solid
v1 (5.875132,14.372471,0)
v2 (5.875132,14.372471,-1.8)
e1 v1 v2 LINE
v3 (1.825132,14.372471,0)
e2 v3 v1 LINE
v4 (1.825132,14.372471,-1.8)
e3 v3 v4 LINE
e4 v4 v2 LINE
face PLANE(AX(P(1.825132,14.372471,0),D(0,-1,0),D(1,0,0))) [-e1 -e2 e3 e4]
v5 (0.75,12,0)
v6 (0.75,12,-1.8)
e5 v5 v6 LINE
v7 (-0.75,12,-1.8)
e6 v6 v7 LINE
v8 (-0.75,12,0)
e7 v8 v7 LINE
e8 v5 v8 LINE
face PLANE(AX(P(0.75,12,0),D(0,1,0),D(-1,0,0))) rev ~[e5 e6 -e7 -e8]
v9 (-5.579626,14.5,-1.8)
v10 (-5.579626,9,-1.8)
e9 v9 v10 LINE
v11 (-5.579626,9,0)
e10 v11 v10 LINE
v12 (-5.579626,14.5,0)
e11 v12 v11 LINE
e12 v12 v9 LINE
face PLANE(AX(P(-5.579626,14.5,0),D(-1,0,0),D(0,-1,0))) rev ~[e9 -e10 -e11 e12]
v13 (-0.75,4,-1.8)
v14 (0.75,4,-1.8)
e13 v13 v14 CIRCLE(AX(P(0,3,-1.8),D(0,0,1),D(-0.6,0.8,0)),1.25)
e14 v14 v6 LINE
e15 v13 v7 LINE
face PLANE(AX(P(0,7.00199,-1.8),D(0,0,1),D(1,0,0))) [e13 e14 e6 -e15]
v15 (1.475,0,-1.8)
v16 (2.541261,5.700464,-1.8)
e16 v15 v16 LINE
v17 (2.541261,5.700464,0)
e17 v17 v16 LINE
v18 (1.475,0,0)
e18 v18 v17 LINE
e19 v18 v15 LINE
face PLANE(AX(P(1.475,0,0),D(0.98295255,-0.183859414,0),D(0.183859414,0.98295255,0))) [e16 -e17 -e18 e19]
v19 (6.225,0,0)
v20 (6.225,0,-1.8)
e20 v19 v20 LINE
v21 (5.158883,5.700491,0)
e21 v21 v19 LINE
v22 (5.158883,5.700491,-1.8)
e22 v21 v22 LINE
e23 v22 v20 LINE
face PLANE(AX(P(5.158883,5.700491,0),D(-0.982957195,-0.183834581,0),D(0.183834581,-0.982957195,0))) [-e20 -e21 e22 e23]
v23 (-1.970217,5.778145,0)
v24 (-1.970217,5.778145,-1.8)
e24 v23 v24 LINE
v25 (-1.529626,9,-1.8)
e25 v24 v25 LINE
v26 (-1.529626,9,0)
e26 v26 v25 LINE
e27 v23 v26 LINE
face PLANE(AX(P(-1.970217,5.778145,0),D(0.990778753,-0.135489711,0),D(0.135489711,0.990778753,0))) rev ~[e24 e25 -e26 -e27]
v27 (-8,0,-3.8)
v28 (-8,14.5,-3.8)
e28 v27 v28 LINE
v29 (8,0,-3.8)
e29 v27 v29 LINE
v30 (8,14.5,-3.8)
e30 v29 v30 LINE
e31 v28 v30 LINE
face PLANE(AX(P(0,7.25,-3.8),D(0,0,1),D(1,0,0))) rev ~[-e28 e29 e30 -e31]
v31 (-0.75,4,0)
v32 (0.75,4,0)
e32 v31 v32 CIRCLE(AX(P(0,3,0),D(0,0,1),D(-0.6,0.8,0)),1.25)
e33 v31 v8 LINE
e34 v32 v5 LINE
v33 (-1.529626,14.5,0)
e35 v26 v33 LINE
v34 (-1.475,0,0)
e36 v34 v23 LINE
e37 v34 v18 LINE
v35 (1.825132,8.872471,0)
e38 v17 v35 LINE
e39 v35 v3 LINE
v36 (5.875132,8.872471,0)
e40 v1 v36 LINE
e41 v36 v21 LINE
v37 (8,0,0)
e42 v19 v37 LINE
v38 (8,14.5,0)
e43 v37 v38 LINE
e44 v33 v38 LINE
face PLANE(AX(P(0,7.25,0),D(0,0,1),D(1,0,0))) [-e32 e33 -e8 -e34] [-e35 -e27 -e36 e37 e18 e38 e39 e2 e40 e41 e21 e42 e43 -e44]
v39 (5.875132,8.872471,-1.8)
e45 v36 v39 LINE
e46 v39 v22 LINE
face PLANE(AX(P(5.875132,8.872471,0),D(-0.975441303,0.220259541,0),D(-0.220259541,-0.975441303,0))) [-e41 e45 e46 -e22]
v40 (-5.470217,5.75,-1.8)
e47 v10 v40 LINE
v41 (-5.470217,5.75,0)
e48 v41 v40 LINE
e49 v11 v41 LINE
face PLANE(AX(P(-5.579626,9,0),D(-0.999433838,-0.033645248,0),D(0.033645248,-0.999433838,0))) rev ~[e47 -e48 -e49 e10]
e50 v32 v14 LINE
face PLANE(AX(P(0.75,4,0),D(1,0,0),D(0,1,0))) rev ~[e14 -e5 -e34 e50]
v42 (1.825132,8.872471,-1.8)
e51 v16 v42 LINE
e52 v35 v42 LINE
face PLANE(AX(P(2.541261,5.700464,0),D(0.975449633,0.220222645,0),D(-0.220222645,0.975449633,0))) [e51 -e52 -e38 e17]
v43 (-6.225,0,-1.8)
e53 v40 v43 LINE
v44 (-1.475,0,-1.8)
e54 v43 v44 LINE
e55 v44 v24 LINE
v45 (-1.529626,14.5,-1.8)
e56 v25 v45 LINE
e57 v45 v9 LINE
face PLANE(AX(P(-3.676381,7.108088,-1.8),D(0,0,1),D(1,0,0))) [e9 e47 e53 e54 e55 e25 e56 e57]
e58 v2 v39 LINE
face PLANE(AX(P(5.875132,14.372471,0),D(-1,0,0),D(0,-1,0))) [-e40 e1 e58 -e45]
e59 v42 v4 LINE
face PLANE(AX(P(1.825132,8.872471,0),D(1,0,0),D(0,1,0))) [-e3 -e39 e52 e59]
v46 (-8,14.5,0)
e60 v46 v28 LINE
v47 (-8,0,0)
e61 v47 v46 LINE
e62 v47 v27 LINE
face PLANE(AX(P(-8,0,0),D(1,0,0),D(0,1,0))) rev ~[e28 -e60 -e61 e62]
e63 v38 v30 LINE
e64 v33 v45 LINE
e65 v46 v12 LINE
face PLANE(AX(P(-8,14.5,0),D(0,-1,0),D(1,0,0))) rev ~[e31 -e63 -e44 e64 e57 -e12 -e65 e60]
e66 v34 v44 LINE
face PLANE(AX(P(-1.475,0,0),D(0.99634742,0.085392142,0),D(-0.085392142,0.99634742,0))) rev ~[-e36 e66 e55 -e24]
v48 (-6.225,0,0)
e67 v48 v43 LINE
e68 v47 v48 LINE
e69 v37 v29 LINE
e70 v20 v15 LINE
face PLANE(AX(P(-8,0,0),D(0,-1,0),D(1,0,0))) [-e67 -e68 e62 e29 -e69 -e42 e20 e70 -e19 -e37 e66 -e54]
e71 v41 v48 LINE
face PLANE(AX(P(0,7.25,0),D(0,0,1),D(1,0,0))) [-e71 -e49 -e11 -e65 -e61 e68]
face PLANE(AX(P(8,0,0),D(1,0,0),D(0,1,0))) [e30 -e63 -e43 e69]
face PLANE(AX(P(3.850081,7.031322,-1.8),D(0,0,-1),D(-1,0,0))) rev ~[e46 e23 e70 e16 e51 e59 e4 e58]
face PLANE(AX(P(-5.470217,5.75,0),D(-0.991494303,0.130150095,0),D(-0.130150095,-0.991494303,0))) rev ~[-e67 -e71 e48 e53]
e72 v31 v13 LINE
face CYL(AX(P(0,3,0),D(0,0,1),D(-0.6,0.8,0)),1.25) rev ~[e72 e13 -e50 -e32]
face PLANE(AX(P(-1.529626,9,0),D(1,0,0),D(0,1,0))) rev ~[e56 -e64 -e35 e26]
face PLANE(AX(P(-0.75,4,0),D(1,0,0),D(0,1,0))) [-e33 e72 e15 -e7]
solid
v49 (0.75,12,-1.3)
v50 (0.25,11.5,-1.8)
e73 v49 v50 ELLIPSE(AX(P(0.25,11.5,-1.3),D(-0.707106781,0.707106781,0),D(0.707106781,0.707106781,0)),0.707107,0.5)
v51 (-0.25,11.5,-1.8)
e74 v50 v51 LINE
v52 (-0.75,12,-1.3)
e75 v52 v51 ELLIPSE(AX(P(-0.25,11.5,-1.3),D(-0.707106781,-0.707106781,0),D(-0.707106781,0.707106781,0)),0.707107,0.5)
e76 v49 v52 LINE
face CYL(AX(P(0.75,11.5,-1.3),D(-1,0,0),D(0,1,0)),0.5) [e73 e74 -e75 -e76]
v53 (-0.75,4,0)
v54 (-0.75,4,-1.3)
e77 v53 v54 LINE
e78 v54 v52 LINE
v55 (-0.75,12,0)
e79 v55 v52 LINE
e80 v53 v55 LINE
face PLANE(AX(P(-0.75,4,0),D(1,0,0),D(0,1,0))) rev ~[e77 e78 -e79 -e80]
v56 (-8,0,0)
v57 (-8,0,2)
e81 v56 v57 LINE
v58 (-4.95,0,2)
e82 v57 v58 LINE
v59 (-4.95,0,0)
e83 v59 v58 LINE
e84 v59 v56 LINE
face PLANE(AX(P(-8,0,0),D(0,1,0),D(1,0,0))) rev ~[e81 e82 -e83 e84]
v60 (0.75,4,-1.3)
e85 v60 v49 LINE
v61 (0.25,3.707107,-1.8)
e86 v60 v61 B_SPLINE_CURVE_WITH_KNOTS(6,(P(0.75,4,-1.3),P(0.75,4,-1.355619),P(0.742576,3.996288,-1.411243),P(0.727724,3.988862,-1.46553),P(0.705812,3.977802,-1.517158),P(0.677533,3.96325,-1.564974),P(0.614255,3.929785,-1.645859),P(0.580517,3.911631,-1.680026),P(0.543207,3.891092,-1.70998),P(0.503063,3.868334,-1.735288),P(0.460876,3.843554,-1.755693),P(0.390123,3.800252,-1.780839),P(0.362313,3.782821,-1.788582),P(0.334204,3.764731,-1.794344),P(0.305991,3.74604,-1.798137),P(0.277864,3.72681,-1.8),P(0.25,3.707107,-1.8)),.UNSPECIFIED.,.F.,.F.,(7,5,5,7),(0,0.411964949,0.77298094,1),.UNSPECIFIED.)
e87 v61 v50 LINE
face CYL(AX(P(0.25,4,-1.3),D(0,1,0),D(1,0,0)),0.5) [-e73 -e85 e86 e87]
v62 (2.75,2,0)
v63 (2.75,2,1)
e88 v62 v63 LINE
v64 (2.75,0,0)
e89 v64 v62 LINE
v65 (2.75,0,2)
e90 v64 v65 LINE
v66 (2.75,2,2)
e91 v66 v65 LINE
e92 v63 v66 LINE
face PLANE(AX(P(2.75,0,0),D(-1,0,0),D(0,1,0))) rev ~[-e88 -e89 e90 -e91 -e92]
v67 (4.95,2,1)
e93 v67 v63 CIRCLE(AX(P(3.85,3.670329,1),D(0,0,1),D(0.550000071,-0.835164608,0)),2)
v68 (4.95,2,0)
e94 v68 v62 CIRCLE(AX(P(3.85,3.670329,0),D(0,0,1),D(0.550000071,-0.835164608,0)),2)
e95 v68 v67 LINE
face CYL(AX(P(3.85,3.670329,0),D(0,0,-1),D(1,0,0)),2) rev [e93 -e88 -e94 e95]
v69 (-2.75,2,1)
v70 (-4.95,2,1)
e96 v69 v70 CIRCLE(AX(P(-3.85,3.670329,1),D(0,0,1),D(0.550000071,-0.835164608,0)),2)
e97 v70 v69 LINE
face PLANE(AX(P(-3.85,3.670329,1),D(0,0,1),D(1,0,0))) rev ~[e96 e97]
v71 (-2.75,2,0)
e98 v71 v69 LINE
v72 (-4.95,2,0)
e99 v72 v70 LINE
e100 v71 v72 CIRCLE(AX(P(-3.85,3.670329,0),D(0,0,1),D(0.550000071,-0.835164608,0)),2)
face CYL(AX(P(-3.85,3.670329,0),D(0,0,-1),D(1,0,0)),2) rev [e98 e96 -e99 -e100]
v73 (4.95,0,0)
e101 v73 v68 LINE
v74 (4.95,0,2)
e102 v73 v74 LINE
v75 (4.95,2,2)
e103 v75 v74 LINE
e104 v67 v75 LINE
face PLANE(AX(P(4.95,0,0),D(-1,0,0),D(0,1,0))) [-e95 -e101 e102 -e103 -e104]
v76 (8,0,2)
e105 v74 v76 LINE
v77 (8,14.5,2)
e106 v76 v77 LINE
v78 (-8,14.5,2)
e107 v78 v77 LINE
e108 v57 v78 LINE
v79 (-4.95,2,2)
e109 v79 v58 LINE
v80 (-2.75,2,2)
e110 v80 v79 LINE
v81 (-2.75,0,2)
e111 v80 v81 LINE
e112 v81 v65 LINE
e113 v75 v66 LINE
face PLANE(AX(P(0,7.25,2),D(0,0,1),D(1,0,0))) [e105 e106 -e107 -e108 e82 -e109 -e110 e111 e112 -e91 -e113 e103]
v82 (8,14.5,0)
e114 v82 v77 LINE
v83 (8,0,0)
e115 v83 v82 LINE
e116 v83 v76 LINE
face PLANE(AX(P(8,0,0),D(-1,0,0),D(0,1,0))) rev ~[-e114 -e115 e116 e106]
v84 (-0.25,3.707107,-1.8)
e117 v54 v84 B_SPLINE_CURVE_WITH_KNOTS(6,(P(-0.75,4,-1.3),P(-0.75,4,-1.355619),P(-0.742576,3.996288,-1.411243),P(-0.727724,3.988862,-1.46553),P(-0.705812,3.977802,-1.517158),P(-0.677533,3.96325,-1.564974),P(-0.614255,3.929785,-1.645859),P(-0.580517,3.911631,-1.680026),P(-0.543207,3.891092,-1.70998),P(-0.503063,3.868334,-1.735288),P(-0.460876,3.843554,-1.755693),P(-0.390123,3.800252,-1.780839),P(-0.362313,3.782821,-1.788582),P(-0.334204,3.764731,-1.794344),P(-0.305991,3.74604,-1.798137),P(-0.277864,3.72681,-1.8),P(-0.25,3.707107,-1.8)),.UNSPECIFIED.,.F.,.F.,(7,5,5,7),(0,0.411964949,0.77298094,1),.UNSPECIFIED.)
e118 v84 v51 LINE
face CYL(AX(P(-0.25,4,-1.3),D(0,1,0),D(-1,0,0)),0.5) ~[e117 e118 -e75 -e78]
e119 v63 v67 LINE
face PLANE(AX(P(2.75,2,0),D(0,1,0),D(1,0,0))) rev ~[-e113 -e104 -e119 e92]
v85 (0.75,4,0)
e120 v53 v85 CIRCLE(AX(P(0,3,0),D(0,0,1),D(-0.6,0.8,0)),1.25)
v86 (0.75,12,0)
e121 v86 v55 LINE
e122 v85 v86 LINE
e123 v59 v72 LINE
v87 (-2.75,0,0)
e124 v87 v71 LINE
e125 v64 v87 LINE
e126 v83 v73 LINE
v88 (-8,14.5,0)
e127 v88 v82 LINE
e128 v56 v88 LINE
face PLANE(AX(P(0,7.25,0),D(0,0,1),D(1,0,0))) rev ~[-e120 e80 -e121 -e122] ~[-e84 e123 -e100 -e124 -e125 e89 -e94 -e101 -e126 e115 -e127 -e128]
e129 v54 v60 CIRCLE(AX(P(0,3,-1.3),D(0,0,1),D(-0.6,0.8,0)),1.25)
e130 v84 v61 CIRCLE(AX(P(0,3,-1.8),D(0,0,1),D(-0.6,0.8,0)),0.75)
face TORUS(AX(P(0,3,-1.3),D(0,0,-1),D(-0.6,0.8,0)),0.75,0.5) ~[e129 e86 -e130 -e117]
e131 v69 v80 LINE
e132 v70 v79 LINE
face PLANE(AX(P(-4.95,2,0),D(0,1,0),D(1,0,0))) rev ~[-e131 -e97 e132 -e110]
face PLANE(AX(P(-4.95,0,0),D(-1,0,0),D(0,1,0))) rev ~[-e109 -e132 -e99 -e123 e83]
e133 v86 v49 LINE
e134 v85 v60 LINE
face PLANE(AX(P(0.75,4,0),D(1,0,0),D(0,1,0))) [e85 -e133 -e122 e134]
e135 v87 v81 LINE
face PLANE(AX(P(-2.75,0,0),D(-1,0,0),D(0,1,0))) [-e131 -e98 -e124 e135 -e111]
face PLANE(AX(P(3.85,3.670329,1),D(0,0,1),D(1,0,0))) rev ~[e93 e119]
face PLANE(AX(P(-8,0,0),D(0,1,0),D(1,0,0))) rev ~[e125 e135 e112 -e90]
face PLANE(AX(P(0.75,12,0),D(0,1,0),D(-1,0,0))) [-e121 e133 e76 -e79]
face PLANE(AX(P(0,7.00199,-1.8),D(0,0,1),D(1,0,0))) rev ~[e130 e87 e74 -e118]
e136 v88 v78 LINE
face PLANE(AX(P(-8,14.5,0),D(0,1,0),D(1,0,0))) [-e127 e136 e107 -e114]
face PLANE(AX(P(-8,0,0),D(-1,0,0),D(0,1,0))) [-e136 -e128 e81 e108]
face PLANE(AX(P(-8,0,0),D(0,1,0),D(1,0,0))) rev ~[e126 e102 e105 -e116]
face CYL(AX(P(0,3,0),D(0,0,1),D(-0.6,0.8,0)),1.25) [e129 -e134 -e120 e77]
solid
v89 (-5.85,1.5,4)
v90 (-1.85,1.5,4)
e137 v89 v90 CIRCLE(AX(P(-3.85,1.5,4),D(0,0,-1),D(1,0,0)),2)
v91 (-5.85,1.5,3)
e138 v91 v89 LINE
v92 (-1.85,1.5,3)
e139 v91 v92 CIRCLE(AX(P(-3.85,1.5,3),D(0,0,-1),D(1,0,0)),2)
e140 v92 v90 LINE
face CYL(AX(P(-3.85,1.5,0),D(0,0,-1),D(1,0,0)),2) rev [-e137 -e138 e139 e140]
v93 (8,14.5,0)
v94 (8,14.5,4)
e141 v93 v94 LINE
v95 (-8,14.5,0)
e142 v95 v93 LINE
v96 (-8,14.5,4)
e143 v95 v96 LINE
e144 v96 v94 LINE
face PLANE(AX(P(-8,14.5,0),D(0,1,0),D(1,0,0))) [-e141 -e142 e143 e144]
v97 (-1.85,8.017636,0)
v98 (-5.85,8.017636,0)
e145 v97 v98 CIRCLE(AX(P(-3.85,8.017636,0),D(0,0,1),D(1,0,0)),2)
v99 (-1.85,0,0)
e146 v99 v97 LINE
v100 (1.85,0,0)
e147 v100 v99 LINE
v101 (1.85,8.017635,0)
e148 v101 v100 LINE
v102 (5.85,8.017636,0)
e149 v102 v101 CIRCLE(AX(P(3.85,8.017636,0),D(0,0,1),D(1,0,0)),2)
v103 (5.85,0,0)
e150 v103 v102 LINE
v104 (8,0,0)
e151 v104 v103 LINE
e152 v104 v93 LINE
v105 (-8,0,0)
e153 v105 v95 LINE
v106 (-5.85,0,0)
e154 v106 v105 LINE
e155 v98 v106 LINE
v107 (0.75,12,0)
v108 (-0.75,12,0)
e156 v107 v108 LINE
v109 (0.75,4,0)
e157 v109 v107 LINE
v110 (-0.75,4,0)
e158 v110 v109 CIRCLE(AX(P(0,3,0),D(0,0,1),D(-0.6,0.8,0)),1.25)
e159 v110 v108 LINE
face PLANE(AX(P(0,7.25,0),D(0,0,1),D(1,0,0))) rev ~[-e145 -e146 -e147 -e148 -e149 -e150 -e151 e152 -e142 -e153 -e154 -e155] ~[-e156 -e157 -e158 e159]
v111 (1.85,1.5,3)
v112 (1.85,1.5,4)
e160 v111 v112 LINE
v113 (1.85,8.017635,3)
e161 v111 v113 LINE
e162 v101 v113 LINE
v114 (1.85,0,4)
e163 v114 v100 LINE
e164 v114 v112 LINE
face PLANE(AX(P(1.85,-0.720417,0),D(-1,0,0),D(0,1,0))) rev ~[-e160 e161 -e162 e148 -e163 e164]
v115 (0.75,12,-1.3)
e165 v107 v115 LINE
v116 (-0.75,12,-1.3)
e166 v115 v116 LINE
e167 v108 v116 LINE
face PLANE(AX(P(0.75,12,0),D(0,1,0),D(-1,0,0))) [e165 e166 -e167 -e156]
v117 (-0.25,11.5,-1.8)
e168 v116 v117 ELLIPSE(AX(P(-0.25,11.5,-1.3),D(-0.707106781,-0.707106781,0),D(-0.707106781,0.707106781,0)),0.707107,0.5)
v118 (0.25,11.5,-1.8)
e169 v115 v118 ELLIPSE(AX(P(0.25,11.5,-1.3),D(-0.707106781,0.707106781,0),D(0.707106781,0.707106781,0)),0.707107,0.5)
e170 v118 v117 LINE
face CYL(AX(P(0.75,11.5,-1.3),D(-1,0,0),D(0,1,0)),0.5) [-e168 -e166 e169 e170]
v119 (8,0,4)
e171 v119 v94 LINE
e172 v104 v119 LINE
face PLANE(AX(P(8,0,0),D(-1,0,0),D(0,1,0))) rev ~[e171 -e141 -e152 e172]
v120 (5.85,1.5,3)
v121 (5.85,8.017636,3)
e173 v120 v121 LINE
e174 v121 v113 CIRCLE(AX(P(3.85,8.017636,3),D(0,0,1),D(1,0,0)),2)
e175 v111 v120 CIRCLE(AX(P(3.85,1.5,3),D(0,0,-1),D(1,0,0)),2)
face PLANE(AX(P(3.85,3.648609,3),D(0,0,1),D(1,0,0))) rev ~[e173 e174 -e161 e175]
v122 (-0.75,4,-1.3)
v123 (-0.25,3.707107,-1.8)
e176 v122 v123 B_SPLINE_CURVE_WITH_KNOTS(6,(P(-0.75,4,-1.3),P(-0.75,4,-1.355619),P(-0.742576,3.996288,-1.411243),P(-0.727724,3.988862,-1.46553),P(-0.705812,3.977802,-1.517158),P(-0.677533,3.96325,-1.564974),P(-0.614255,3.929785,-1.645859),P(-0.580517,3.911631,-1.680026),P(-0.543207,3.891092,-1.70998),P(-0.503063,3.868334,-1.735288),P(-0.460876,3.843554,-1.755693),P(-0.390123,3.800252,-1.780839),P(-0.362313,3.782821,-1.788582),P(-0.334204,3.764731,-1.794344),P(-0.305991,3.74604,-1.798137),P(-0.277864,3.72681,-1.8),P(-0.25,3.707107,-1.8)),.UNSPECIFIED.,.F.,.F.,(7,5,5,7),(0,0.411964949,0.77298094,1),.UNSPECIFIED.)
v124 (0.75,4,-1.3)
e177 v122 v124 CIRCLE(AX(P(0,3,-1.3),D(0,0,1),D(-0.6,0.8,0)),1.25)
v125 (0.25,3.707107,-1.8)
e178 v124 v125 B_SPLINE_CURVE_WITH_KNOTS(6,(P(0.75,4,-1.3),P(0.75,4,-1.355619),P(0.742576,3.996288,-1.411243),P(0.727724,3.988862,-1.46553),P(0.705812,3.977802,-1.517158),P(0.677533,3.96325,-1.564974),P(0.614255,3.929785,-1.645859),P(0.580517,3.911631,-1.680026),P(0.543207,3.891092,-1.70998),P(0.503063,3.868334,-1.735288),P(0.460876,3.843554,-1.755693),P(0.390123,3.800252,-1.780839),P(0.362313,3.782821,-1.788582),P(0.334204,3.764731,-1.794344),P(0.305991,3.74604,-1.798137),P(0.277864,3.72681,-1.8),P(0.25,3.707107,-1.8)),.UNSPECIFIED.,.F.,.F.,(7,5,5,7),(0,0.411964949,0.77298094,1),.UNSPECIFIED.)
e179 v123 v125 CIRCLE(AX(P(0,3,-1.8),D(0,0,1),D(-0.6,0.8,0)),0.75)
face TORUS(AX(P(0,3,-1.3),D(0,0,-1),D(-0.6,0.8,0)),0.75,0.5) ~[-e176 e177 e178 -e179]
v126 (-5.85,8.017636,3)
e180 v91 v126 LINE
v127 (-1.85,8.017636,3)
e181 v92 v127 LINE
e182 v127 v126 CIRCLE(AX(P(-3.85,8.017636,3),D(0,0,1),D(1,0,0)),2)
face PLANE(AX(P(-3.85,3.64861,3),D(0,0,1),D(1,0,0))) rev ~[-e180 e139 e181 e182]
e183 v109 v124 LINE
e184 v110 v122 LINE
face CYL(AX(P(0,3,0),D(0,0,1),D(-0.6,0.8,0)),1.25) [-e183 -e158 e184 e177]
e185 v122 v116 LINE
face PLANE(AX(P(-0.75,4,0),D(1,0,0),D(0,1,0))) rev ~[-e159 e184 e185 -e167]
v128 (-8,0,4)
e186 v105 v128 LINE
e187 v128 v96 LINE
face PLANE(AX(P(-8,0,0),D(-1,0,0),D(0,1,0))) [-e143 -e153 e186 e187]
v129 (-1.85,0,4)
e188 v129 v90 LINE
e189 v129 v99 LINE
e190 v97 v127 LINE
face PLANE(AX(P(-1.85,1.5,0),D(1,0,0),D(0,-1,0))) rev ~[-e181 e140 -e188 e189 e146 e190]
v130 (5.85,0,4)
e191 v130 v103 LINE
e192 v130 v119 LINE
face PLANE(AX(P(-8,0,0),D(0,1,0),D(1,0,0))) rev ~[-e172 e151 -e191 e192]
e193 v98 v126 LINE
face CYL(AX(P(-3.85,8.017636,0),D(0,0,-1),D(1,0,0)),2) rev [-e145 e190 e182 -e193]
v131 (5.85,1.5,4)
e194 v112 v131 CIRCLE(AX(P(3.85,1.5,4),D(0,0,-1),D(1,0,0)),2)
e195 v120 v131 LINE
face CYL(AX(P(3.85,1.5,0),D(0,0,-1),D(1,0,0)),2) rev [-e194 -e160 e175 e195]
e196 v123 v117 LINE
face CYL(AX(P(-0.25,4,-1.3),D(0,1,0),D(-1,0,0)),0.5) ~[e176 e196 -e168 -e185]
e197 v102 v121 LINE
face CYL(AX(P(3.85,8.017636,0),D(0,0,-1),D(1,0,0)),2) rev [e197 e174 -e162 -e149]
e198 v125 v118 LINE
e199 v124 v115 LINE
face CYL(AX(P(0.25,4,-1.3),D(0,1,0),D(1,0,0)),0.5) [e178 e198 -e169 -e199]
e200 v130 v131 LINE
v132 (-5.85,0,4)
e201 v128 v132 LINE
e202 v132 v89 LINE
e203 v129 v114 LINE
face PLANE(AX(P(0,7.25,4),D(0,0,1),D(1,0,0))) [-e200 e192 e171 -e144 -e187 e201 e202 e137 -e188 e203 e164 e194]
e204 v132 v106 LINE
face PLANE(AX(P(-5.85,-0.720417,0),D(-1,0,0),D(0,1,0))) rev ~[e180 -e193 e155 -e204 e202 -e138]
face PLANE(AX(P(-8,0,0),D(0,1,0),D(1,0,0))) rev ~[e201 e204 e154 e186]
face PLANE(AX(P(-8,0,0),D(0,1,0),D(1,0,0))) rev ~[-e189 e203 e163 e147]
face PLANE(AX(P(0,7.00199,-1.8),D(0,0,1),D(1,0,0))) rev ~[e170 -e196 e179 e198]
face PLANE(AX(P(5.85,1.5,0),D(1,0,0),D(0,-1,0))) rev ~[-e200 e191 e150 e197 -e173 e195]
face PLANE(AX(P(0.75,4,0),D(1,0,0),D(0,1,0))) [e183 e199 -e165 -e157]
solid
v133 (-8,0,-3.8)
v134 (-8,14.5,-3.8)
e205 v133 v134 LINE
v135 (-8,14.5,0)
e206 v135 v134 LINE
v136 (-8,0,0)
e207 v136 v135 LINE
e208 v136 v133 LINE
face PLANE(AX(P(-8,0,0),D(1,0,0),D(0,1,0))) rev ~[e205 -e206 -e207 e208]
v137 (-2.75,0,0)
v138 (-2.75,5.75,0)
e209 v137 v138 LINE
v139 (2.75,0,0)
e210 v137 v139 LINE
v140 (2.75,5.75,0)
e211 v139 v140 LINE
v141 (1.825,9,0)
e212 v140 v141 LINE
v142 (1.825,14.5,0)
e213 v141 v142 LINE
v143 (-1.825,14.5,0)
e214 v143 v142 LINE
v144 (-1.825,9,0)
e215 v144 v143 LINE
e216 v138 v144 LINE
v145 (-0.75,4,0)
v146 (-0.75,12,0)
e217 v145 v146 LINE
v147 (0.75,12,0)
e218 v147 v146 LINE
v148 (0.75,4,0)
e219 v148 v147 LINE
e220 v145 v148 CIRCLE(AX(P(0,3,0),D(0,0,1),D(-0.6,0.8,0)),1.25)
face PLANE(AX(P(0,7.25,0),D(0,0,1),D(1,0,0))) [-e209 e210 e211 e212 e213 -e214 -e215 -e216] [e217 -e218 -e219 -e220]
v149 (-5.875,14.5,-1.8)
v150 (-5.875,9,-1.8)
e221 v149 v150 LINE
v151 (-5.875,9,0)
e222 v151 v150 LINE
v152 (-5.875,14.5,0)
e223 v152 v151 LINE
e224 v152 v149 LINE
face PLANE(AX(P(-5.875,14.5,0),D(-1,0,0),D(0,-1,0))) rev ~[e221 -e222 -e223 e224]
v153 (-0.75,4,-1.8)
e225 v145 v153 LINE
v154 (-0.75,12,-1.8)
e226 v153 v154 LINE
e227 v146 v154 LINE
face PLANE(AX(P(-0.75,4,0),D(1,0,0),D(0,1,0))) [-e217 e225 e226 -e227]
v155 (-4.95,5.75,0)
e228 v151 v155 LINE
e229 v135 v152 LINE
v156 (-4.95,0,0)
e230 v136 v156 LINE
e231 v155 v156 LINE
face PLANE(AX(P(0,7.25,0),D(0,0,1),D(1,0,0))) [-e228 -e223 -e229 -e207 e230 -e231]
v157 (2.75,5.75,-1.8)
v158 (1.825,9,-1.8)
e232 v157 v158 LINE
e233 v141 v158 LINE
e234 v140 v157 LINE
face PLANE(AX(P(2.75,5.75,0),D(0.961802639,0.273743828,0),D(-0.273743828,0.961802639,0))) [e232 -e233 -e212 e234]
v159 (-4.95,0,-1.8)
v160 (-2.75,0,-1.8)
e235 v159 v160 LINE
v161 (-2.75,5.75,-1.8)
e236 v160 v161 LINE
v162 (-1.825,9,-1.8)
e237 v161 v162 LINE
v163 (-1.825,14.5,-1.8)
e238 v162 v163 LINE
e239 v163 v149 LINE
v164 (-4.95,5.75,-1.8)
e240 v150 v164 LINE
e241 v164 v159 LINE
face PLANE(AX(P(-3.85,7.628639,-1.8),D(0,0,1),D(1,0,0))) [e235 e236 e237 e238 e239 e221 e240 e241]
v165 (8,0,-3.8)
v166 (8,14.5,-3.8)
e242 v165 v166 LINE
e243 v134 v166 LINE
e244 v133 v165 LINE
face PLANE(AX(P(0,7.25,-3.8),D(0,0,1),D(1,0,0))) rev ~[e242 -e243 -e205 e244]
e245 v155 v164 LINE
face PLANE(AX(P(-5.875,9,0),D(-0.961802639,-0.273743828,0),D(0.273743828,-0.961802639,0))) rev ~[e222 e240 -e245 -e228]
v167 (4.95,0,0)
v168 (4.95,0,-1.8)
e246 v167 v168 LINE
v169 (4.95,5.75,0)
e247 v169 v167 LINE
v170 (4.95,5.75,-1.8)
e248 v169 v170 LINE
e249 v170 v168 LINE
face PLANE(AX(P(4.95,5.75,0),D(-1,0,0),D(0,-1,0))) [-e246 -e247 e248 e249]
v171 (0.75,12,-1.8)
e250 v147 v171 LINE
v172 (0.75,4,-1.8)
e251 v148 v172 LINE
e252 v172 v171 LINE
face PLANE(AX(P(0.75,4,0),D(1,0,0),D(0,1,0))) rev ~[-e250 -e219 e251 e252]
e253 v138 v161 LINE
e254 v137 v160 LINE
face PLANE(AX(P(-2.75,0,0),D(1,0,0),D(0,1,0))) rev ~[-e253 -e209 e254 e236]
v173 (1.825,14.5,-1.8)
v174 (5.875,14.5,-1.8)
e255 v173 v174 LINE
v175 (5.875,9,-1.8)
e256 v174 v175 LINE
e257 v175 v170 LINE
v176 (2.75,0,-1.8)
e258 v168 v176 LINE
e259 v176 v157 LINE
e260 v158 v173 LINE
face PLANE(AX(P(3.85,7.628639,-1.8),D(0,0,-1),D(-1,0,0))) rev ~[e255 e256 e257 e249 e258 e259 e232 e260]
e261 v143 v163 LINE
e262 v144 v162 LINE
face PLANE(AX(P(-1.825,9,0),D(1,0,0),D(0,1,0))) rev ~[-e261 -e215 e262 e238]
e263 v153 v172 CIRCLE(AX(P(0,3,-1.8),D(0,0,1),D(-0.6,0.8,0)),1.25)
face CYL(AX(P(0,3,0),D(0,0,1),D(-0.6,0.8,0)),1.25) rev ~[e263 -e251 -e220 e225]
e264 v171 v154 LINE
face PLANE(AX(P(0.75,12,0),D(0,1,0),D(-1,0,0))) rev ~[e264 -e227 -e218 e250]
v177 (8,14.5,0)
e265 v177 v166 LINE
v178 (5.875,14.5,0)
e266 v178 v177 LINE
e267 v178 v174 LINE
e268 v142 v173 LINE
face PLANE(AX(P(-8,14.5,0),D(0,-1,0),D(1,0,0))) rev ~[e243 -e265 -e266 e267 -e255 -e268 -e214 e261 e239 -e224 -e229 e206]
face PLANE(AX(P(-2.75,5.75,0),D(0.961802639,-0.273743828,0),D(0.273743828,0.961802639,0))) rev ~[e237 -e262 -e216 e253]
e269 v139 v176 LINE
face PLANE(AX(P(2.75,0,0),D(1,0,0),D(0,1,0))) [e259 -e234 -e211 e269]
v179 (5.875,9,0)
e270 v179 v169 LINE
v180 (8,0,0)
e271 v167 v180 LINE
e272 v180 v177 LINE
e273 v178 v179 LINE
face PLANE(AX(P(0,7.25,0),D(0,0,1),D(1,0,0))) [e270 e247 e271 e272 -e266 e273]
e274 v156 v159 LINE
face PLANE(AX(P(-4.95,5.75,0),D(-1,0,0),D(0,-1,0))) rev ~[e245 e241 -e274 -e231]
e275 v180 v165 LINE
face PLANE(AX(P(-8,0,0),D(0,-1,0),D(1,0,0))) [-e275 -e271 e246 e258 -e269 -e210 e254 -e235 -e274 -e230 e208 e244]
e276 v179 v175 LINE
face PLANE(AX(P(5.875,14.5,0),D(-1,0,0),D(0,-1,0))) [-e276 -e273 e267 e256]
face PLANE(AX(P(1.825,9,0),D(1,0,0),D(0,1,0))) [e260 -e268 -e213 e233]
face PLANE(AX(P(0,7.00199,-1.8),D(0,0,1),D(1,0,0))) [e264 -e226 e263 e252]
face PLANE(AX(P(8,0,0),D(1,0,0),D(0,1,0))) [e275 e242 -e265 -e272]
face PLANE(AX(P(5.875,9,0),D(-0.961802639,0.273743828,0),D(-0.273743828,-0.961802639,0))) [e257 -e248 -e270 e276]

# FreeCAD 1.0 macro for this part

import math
import FreeCAD as App
import Part
import Sketcher

V = App.Vector


def edges_at(feature, points):
    """Names of the edges that pass closest to the given points."""
    edges = feature.Shape.Edges
    near = lambda p: min(range(len(edges)), key=lambda i: edges[i].distToShape(Part.Vertex(*p))[0])
    return sorted({f"Edge{near(p) + 1}" for p in points})

doc = App.newDocument("Part")
params = doc.addObject("Spreadsheet::Sheet", "Params")
for row, (alias, value) in enumerate([
    ("sketch1_width", "16 mm"),
    ("sketch1_height", "14.5 mm"),
    ("pad1_length", "3.8 mm"),
    ("sketch2_height", "8 mm"),
    ("sketch2_radius", "1.25 mm"),
    ("sketch2_width", "2.2 mm"),
    ("sketch2_width2", "1.5 mm"),
    ("sketch2_height2", "5.5 mm"),
    ("pocket1_length", "1.8 mm"),
    ("sketch3_width", "16 mm"),
    ("sketch3_height", "14.5 mm"),
    ("pad2_length", "2 mm"),
    ("sketch4_height", "8 mm"),
    ("sketch4_radius", "1.25 mm"),
    ("sketch4_width", "1.5 mm"),
    ("pad3_length", "1.8 mm"),
    ("fillet_radius", "0.5 mm"),
    ("sketch5_height", "2 mm"),
    ("sketch5_width", "2.2 mm"),
    ("sketch6_diameter", "4 mm"),
    ("pocket3_length", "1 mm"),
    ("sketch7_width", "16 mm"),
    ("sketch7_height", "14.5 mm"),
    ("pad4_length", "3.8 mm"),
    ("sketch8_height", "8 mm"),
    ("sketch8_radius", "1.25 mm"),
    ("sketch8_width", "1.5 mm"),
    ("sketch8_height2", "5.5 mm"),
    ("sketch8_width2", "4.75 mm"),
    ("pocket4_length", "1.8 mm"),
    ("sketch9_width", "16 mm"),
    ("sketch9_height", "14.5 mm"),
    ("pad5_length", "4 mm"),
    ("sketch10_height", "8 mm"),
    ("sketch10_radius", "1.25 mm"),
    ("sketch10_width", "1.5 mm"),
    ("pad6_length", "1.8 mm"),
    ("fillet2_radius", "0.5 mm"),
    ("sketch11_radius", "2 mm"),
    ("sketch12_radius", "2 mm"),
    ("pocket6_length", "3 mm"),
], start=1):
    params.set(f"A{row}", alias)
    params.set(f"B{row}", "=" + value)
    params.setAlias(f"B{row}", alias)

body = doc.addObject("PartDesign::Body", "Body")

# Sketch on XY plane
sketch1 = body.newObject("Sketcher::SketchObject", "Sketch")
sketch1.AttachmentSupport = (doc.getObject("XY_Plane"), [""])
sketch1.MapMode = "FlatFace"
sketch1.addGeometry([
    Part.LineSegment(V(-8, 14, 0), V(-8, 0, 0)),
    Part.LineSegment(V(-8, 0, 0), V(8, 0, 0)),
    Part.LineSegment(V(8, 0, 0), V(8, 14, 0)),
    Part.LineSegment(V(8, 14, 0), V(-8, 14, 0)),
], False)
sketch1.addConstraint([
    Sketcher.Constraint("Coincident", 0, 2, 1, 1),
    Sketcher.Constraint("Coincident", 1, 2, 2, 1),
    Sketcher.Constraint("Coincident", 2, 2, 3, 1),
    Sketcher.Constraint("Coincident", 3, 2, 0, 1),
    Sketcher.Constraint("Vertical", 0),
    Sketcher.Constraint("Horizontal", 1),
    Sketcher.Constraint("Vertical", 2),
    Sketcher.Constraint("Horizontal", 3),
    Sketcher.Constraint("Symmetric", 0, 2, 1, 2, -1, 1),
    Sketcher.Constraint("DistanceX", 1, 1, 1, 2, 16.0),
    Sketcher.Constraint("DistanceY", 0, 2, 0, 1, 14.5),
])
sketch1.setExpression("Constraints[9]", "Params.sketch1_width")
sketch1.setExpression("Constraints[10]", "Params.sketch1_height")
pad1 = body.newObject("PartDesign::Pad", "Pad")
pad1.Profile = sketch1
pad1.setExpression("Length", "Params.pad1_length")
pad1.Reversed = True

# Sketch on XY plane
sketch2 = body.newObject("Sketcher::SketchObject", "Sketch001")
sketch2.AttachmentSupport = (doc.getObject("XY_Plane"), [""])
sketch2.MapMode = "FlatFace"
sketch2.addGeometry([
    Part.LineSegment(V(-5.9, 14.5, 0), V(-5.9, 9, 0)),  # 0
    Part.LineSegment(V(-5.9, 9, 0), V(-5, 5.8, 0)),  # 1
    Part.LineSegment(V(-5, 5.8, 0), V(-5, 0, 0)),  # 2
    Part.LineSegment(V(-5, 0, 0), V(-2.8, 0, 0)),  # 3
    Part.LineSegment(V(-2.8, 0, 0), V(-2.8, 5.8, 0)),  # 4
    Part.LineSegment(V(-2.8, 5.8, 0), V(-1.8, 9, 0)),  # 5
    Part.LineSegment(V(-1.8, 9, 0), V(-1.8, 14.5, 0)),  # 6
    Part.LineSegment(V(-1.8, 14.5, 0), V(-5.9, 14.5, 0)),  # 7
    Part.LineSegment(V(2.8, 5.8, 0), V(2.8, 0, 0)),  # 8
    Part.LineSegment(V(2.8, 0, 0), V(5, 0, 0)),  # 9
    Part.LineSegment(V(5, 0, 0), V(5, 5.8, 0)),  # 10
    Part.LineSegment(V(5, 5.8, 0), V(5.9, 9, 0)),  # 11
    Part.LineSegment(V(5.9, 9, 0), V(5.9, 14.5, 0)),  # 12
    Part.LineSegment(V(5.9, 14.5, 0), V(1.8, 14.5, 0)),  # 13
    Part.LineSegment(V(1.8, 14.5, 0), V(1.8, 9, 0)),  # 14
    Part.LineSegment(V(1.8, 9, 0), V(2.8, 5.8, 0)),  # 15
    Part.ArcOfCircle(Part.Circle(V(0, 3, 0), V(0, 0, 1), 1.2), math.radians(127), math.radians(413)),  # 16
    Part.LineSegment(V(0.8, 4, 0), V(0.8, 12, 0)),  # 17
    Part.LineSegment(V(0.8, 12, 0), V(-0.8, 12, 0)),  # 18
    Part.LineSegment(V(-0.8, 12, 0), V(-0.8, 4, 0)),  # 19
], False)
sketch2.addConstraint([
    Sketcher.Constraint("Coincident", 0, 2, 1, 1),
    Sketcher.Constraint("Coincident", 1, 2, 2, 1),
    Sketcher.Constraint("Coincident", 2, 2, 3, 1),
    Sketcher.Constraint("Coincident", 3, 2, 4, 1),
    Sketcher.Constraint("Coincident", 4, 2, 5, 1),
    Sketcher.Constraint("Coincident", 5, 2, 6, 1),
    Sketcher.Constraint("Coincident", 6, 2, 7, 1),
    Sketcher.Constraint("Coincident", 7, 2, 0, 1),
    Sketcher.Constraint("Coincident", 8, 2, 9, 1),
    Sketcher.Constraint("Coincident", 9, 2, 10, 1),
    Sketcher.Constraint("Coincident", 10, 2, 11, 1),
    Sketcher.Constraint("Coincident", 11, 2, 12, 1),
    Sketcher.Constraint("Coincident", 12, 2, 13, 1),
    Sketcher.Constraint("Coincident", 13, 2, 14, 1),
    Sketcher.Constraint("Coincident", 14, 2, 15, 1),
    Sketcher.Constraint("Coincident", 15, 2, 8, 1),
    Sketcher.Constraint("Coincident", 16, 2, 17, 1),
    Sketcher.Constraint("Coincident", 17, 2, 18, 1),
    Sketcher.Constraint("Coincident", 18, 2, 19, 1),
    Sketcher.Constraint("Coincident", 19, 2, 16, 1),
    Sketcher.Constraint("Vertical", 0),
    Sketcher.Constraint("Vertical", 2),
    Sketcher.Constraint("Horizontal", 3),
    Sketcher.Constraint("Vertical", 4),
    Sketcher.Constraint("Vertical", 6),
    Sketcher.Constraint("Horizontal", 7),
    Sketcher.Constraint("Vertical", 8),
    Sketcher.Constraint("Horizontal", 9),
    Sketcher.Constraint("Vertical", 10),
    Sketcher.Constraint("Vertical", 12),
    Sketcher.Constraint("Horizontal", 13),
    Sketcher.Constraint("Vertical", 14),
    Sketcher.Constraint("Vertical", 17),
    Sketcher.Constraint("Horizontal", 18),
    Sketcher.Constraint("Vertical", 19),
    Sketcher.Constraint("Symmetric", 3, 2, 8, 2, -1, 1),
    Sketcher.Constraint("Symmetric", 2, 2, 9, 2, -2),
    Sketcher.Constraint("Symmetric", 0, 2, 11, 2, -2),
    Sketcher.Constraint("Symmetric", 6, 2, 13, 2, -2),
    Sketcher.Constraint("Symmetric", 16, 2, 19, 2, -2),
    Sketcher.Constraint("Parallel", 5, 11),
    Sketcher.Constraint("Parallel", 1, 15),
    Sketcher.Constraint("Horizontal", 1, 2, 4, 2),
    Sketcher.Constraint("Horizontal", 0, 2, 5, 2),
    Sketcher.Constraint("Horizontal", 4, 2, 10, 2),
    Sketcher.Constraint("Horizontal", 11, 2, 14, 2),
    Sketcher.Constraint("DistanceY", 17, 1, 17, 2, 8.0),
    Sketcher.Constraint("Radius", 16, 1.25),
    Sketcher.Constraint("DistanceX", 3, 1, 3, 2, 2.2),
    Sketcher.Constraint("DistanceX", 18, 2, 18, 1, 1.5),
    Sketcher.Constraint("DistanceY", 0, 2, 0, 1, 5.5),
    Sketcher.Constraint("DistanceY", -1, 1, 16, 3, 3.0),
    Sketcher.Constraint("DistanceY", -1, 1, 0, 2, 9.0),
    Sketcher.Constraint("DistanceX", 16, 2, 15, 2, 2.0),
    Sketcher.Constraint("DistanceX", 7, 2, 7, 1, 4.05),
    Sketcher.Constraint("DistanceY", 2, 2, 2, 1, 5.75),
])
sketch2.setExpression("Constraints[46]", "Params.sketch2_height")
sketch2.setExpression("Constraints[47]", "Params.sketch2_radius")
sketch2.setExpression("Constraints[48]", "Params.sketch2_width")
sketch2.setExpression("Constraints[49]", "Params.sketch2_width2")
sketch2.setExpression("Constraints[50]", "Params.sketch2_height2")
pocket1 = body.newObject("PartDesign::Pocket", "Pocket")
pocket1.Profile = sketch2
pocket1.setExpression("Length", "Params.pocket1_length")
body2 = doc.addObject("PartDesign::Body", "Body001")

# Sketch on XY plane
sketch3 = body2.newObject("Sketcher::SketchObject", "Sketch002")
sketch3.AttachmentSupport = (doc.getObject("XY_Plane001"), [""])
sketch3.MapMode = "FlatFace"
sketch3.addGeometry([
    Part.LineSegment(V(-8, 14, 0), V(-8, 0, 0)),
    Part.LineSegment(V(-8, 0, 0), V(8, 0, 0)),
    Part.LineSegment(V(8, 0, 0), V(8, 14, 0)),
    Part.LineSegment(V(8, 14, 0), V(-8, 14, 0)),
], False)
sketch3.addConstraint([
    Sketcher.Constraint("Coincident", 0, 2, 1, 1),
    Sketcher.Constraint("Coincident", 1, 2, 2, 1),
    Sketcher.Constraint("Coincident", 2, 2, 3, 1),
    Sketcher.Constraint("Coincident", 3, 2, 0, 1),
    Sketcher.Constraint("Vertical", 0),
    Sketcher.Constraint("Horizontal", 1),
    Sketcher.Constraint("Vertical", 2),
    Sketcher.Constraint("Horizontal", 3),
    Sketcher.Constraint("Symmetric", 0, 2, 1, 2, -1, 1),
    Sketcher.Constraint("DistanceX", 1, 1, 1, 2, 16.0),
    Sketcher.Constraint("DistanceY", 0, 2, 0, 1, 14.5),
])
sketch3.setExpression("Constraints[9]", "Params.sketch3_width")
sketch3.setExpression("Constraints[10]", "Params.sketch3_height")
pad2 = body2.newObject("PartDesign::Pad", "Pad001")
pad2.Profile = sketch3
pad2.setExpression("Length", "Params.pad2_length")

# Sketch on XY plane
sketch4 = body2.newObject("Sketcher::SketchObject", "Sketch003")
sketch4.AttachmentSupport = (doc.getObject("XY_Plane001"), [""])
sketch4.MapMode = "FlatFace"
sketch4.addGeometry([
    Part.ArcOfCircle(Part.Circle(V(0, 3, 0), V(0, 0, 1), 1.2), math.radians(127), math.radians(413)),
    Part.LineSegment(V(0.8, 4, 0), V(0.8, 12, 0)),
    Part.LineSegment(V(0.8, 12, 0), V(-0.8, 12, 0)),
    Part.LineSegment(V(-0.8, 12, 0), V(-0.8, 4, 0)),
], False)
sketch4.addConstraint([
    Sketcher.Constraint("Coincident", 0, 2, 1, 1),
    Sketcher.Constraint("Coincident", 1, 2, 2, 1),
    Sketcher.Constraint("Coincident", 2, 2, 3, 1),
    Sketcher.Constraint("Coincident", 3, 2, 0, 1),
    Sketcher.Constraint("Vertical", 1),
    Sketcher.Constraint("Horizontal", 2),
    Sketcher.Constraint("Vertical", 3),
    Sketcher.Constraint("Symmetric", 0, 2, 3, 2, -2),
    Sketcher.Constraint("DistanceY", 1, 1, 1, 2, 8.0),
    Sketcher.Constraint("Radius", 0, 1.25),
    Sketcher.Constraint("DistanceX", 2, 2, 2, 1, 1.5),
    Sketcher.Constraint("DistanceY", -1, 1, 0, 3, 3.0),
])
sketch4.setExpression("Constraints[8]", "Params.sketch4_height")
sketch4.setExpression("Constraints[9]", "Params.sketch4_radius")
sketch4.setExpression("Constraints[10]", "Params.sketch4_width")
pad3 = body2.newObject("PartDesign::Pad", "Pad002")
pad3.Profile = sketch4
pad3.setExpression("Length", "Params.pad3_length")
pad3.Reversed = True
doc.recompute()

fillet = body2.newObject("PartDesign::Fillet", "Fillet")
fillet.Base = (pad3, edges_at(pad3, [
    (0, 1.75, -1.8),
    (0.75, 8, -1.8),
    (0, 12, -1.8),
    (-0.75, 8, -1.8),
]))
fillet.setExpression("Radius", "Params.fillet_radius")

# Sketch on XY plane
sketch5 = body2.newObject("Sketcher::SketchObject", "Sketch004")
sketch5.AttachmentSupport = (doc.getObject("XY_Plane001"), [""])
sketch5.MapMode = "FlatFace"
sketch5.addGeometry([
    Part.LineSegment(V(-5, 2, 0), V(-5, 0, 0)),  # 0
    Part.LineSegment(V(-5, 0, 0), V(-2.8, 0, 0)),  # 1
    Part.LineSegment(V(-2.8, 0, 0), V(-2.8, 2, 0)),  # 2
    Part.LineSegment(V(-2.8, 2, 0), V(-5, 2, 0)),  # 3
    Part.LineSegment(V(2.8, 2, 0), V(2.8, 0, 0)),  # 4
    Part.LineSegment(V(2.8, 0, 0), V(5, 0, 0)),  # 5
    Part.LineSegment(V(5, 0, 0), V(5, 2, 0)),  # 6
    Part.LineSegment(V(5, 2, 0), V(2.8, 2, 0)),  # 7
], False)
sketch5.addConstraint([
    Sketcher.Constraint("Coincident", 0, 2, 1, 1),
    Sketcher.Constraint("Coincident", 1, 2, 2, 1),
    Sketcher.Constraint("Coincident", 2, 2, 3, 1),
    Sketcher.Constraint("Coincident", 3, 2, 0, 1),
    Sketcher.Constraint("Coincident", 4, 2, 5, 1),
    Sketcher.Constraint("Coincident", 5, 2, 6, 1),
    Sketcher.Constraint("Coincident", 6, 2, 7, 1),
    Sketcher.Constraint("Coincident", 7, 2, 4, 1),
    Sketcher.Constraint("Vertical", 0),
    Sketcher.Constraint("Horizontal", 1),
    Sketcher.Constraint("Vertical", 2),
    Sketcher.Constraint("Horizontal", 3),
    Sketcher.Constraint("Vertical", 4),
    Sketcher.Constraint("Horizontal", 5),
    Sketcher.Constraint("Vertical", 6),
    Sketcher.Constraint("Horizontal", 7),
    Sketcher.Constraint("Symmetric", 1, 2, 4, 2, -1, 1),
    Sketcher.Constraint("Symmetric", 0, 2, 5, 2, -2),
    Sketcher.Constraint("Horizontal", 3, 2, 6, 2),
    Sketcher.Constraint("DistanceY", 0, 2, 0, 1, 2.0),
    Sketcher.Constraint("DistanceX", 1, 1, 1, 2, 2.2),
    Sketcher.Constraint("DistanceX", 1, 2, 4, 2, 5.5),
])
sketch5.setExpression("Constraints[19]", "Params.sketch5_height")
sketch5.setExpression("Constraints[20]", "Params.sketch5_width")
pocket2 = body2.newObject("PartDesign::Pocket", "Pocket001")
pocket2.Profile = sketch5
pocket2.Type = "ThroughAll"
pocket2.Midplane = True

# Sketch on XY plane
sketch6 = body2.newObject("Sketcher::SketchObject", "Sketch005")
sketch6.AttachmentSupport = (doc.getObject("XY_Plane001"), [""])
sketch6.MapMode = "FlatFace"
sketch6.addGeometry([
    Part.Circle(V(-3.9, 3.7, 0), V(0, 0, 1), 2),
    Part.Circle(V(3.9, 3.7, 0), V(0, 0, 1), 2),
], False)
sketch6.addConstraint([
    Sketcher.Constraint("Equal", 0, 1),
    Sketcher.Constraint("Symmetric", 0, 3, 1, 3, -2),
    Sketcher.Constraint("Diameter", 0, 4.0),
    Sketcher.Constraint("DistanceX", 0, 3, 1, 3, 7.7),
    Sketcher.Constraint("DistanceY", -1, 1, 0, 3, 3.670329),
])
sketch6.setExpression("Constraints[2]", "Params.sketch6_diameter")
pocket3 = body2.newObject("PartDesign::Pocket", "Pocket002")
pocket3.Profile = sketch6
pocket3.setExpression("Length", "Params.pocket3_length")
pocket3.Reversed = True
body3 = doc.addObject("PartDesign::Body", "Body002")

# Sketch on XY plane
sketch7 = body3.newObject("Sketcher::SketchObject", "Sketch006")
sketch7.AttachmentSupport = (doc.getObject("XY_Plane002"), [""])
sketch7.MapMode = "FlatFace"
sketch7.addGeometry([
    Part.LineSegment(V(-8, 14, 0), V(-8, 0, 0)),
    Part.LineSegment(V(-8, 0, 0), V(8, 0, 0)),
    Part.LineSegment(V(8, 0, 0), V(8, 14, 0)),
    Part.LineSegment(V(8, 14, 0), V(-8, 14, 0)),
], False)
sketch7.addConstraint([
    Sketcher.Constraint("Coincident", 0, 2, 1, 1),
    Sketcher.Constraint("Coincident", 1, 2, 2, 1),
    Sketcher.Constraint("Coincident", 2, 2, 3, 1),
    Sketcher.Constraint("Coincident", 3, 2, 0, 1),
    Sketcher.Constraint("Vertical", 0),
    Sketcher.Constraint("Horizontal", 1),
    Sketcher.Constraint("Vertical", 2),
    Sketcher.Constraint("Horizontal", 3),
    Sketcher.Constraint("Symmetric", 0, 2, 1, 2, -1, 1),
    Sketcher.Constraint("DistanceX", 1, 1, 1, 2, 16.0),
    Sketcher.Constraint("DistanceY", 0, 2, 0, 1, 14.5),
])
sketch7.setExpression("Constraints[9]", "Params.sketch7_width")
sketch7.setExpression("Constraints[10]", "Params.sketch7_height")
pad4 = body3.newObject("PartDesign::Pad", "Pad003")
pad4.Profile = sketch7
pad4.setExpression("Length", "Params.pad4_length")
pad4.Reversed = True

# Sketch on XY plane
sketch8 = body3.newObject("Sketcher::SketchObject", "Sketch007")
sketch8.AttachmentSupport = (doc.getObject("XY_Plane002"), [""])
sketch8.MapMode = "FlatFace"
sketch8.addGeometry([
    Part.LineSegment(V(-5.6, 14.5, 0), V(-5.6, 9, 0)),  # 0
    Part.LineSegment(V(-5.6, 9, 0), V(-5.5, 5.8, 0)),  # 1
    Part.LineSegment(V(-5.5, 5.8, 0), V(-6.2, 0, 0)),  # 2
    Part.LineSegment(V(-6.2, 0, 0), V(-1.5, 0, 0)),  # 3
    Part.LineSegment(V(-1.5, 0, 0), V(-2, 5.8, 0)),  # 4
    Part.LineSegment(V(-2, 5.8, 0), V(-1.5, 9, 0)),  # 5
    Part.LineSegment(V(-1.5, 9, 0), V(-1.5, 14.5, 0)),  # 6
    Part.LineSegment(V(-1.5, 14.5, 0), V(-5.6, 14.5, 0)),  # 7
    Part.LineSegment(V(2.5, 5.7, 0), V(1.5, 0, 0)),  # 8
    Part.LineSegment(V(1.5, 0, 0), V(6.2, 0, 0)),  # 9
    Part.LineSegment(V(6.2, 0, 0), V(5.2, 5.7, 0)),  # 10
    Part.LineSegment(V(5.2, 5.7, 0), V(5.9, 8.9, 0)),  # 11
    Part.LineSegment(V(5.9, 8.9, 0), V(5.9, 14.4, 0)),  # 12
    Part.LineSegment(V(5.9, 14.4, 0), V(1.8, 14.4, 0)),  # 13
    Part.LineSegment(V(1.8, 14.4, 0), V(1.8, 8.9, 0)),  # 14
    Part.LineSegment(V(1.8, 8.9, 0), V(2.5, 5.7, 0)),  # 15
    Part.ArcOfCircle(Part.Circle(V(0, 3, 0), V(0, 0, 1), 1.2), math.radians(127), math.radians(413)),  # 16
    Part.LineSegment(V(0.8, 4, 0), V(0.8, 12, 0)),  # 17
    Part.LineSegment(V(0.8, 12, 0), V(-0.8, 12, 0)),  # 18
    Part.LineSegment(V(-0.8, 12, 0), V(-0.8, 4, 0)),  # 19
], False)
sketch8.addConstraint([
    Sketcher.Constraint("Coincident", 0, 2, 1, 1),
    Sketcher.Constraint("Coincident", 1, 2, 2, 1),
    Sketcher.Constraint("Coincident", 2, 2, 3, 1),
    Sketcher.Constraint("Coincident", 3, 2, 4, 1),
    Sketcher.Constraint("Coincident", 4, 2, 5, 1),
    Sketcher.Constraint("Coincident", 5, 2, 6, 1),
    Sketcher.Constraint("Coincident", 6, 2, 7, 1),
    Sketcher.Constraint("Coincident", 7, 2, 0, 1),
    Sketcher.Constraint("Coincident", 8, 2, 9, 1),
    Sketcher.Constraint("Coincident", 9, 2, 10, 1),
    Sketcher.Constraint("Coincident", 10, 2, 11, 1),
    Sketcher.Constraint("Coincident", 11, 2, 12, 1),
    Sketcher.Constraint("Coincident", 12, 2, 13, 1),
    Sketcher.Constraint("Coincident", 13, 2, 14, 1),
    Sketcher.Constraint("Coincident", 14, 2, 15, 1),
    Sketcher.Constraint("Coincident", 15, 2, 8, 1),
    Sketcher.Constraint("Coincident", 16, 2, 17, 1),
    Sketcher.Constraint("Coincident", 17, 2, 18, 1),
    Sketcher.Constraint("Coincident", 18, 2, 19, 1),
    Sketcher.Constraint("Coincident", 19, 2, 16, 1),
    Sketcher.Constraint("Vertical", 0),
    Sketcher.Constraint("Horizontal", 3),
    Sketcher.Constraint("Vertical", 6),
    Sketcher.Constraint("Horizontal", 7),
    Sketcher.Constraint("Horizontal", 9),
    Sketcher.Constraint("Vertical", 12),
    Sketcher.Constraint("Horizontal", 13),
    Sketcher.Constraint("Vertical", 14),
    Sketcher.Constraint("Vertical", 17),
    Sketcher.Constraint("Horizontal", 18),
    Sketcher.Constraint("Vertical", 19),
    Sketcher.Constraint("Symmetric", 3, 2, 8, 2, -1, 1),
    Sketcher.Constraint("Symmetric", 2, 2, 9, 2, -2),
    Sketcher.Constraint("Symmetric", 16, 2, 19, 2, -2),
    Sketcher.Constraint("Horizontal", 0, 2, 5, 2),
    Sketcher.Constraint("Horizontal", 11, 2, 14, 2),
    Sketcher.Constraint("Equal", 7, 13),
    Sketcher.Constraint("Equal", 6, 12),
    Sketcher.Constraint("Equal", 2, 4),
    Sketcher.Constraint("Equal", 1, 5),
    Sketcher.Constraint("Equal", 4, 8),
    Sketcher.Constraint("Equal", 8, 10),
    Sketcher.Constraint("Equal", 5, 11),
    Sketcher.Constraint("Equal", 11, 15),
    Sketcher.Constraint("DistanceY", 17, 1, 17, 2, 8.0),
    Sketcher.Constraint("Radius", 16, 1.25),
    Sketcher.Constraint("DistanceX", 18, 2, 18, 1, 1.5),
    Sketcher.Constraint("DistanceY", 0, 2, 0, 1, 5.5),
    Sketcher.Constraint("DistanceY", -1, 1, 16, 3, 3.0),
    Sketcher.Constraint("DistanceY", -1, 1, 0, 2, 9.0),
    Sketcher.Constraint("DistanceX", 3, 1, 3, 2, 4.75),
    Sketcher.Constraint("DistanceX", 7, 2, 7, 1, 4.05),
    Sketcher.Constraint("DistanceX", 1, 2, 4, 2, 3.5),
    Sketcher.Constraint("DistanceX", 2, 2, 8, 2, 7.7),
    Sketcher.Constraint("DistanceY", -1, 1, 1, 2, 5.75),
    Sketcher.Constraint("DistanceX", 4, 2, 10, 2, 7.1291),
    Sketcher.Constraint("Distance", 1, 3.251841),
    Sketcher.Constraint("DistanceX", -1, 1, 11, 2, 5.875132),
])
sketch8.setExpression("Constraints[44]", "Params.sketch8_height")
sketch8.setExpression("Constraints[45]", "Params.sketch8_radius")
sketch8.setExpression("Constraints[46]", "Params.sketch8_width")
sketch8.setExpression("Constraints[47]", "Params.sketch8_height2")
sketch8.setExpression("Constraints[50]", "Params.sketch8_width2")
pocket4 = body3.newObject("PartDesign::Pocket", "Pocket003")
pocket4.Profile = sketch8
pocket4.setExpression("Length", "Params.pocket4_length")
body4 = doc.addObject("PartDesign::Body", "Body003")

# Sketch on XY plane
sketch9 = body4.newObject("Sketcher::SketchObject", "Sketch008")
sketch9.AttachmentSupport = (doc.getObject("XY_Plane003"), [""])
sketch9.MapMode = "FlatFace"
sketch9.addGeometry([
    Part.LineSegment(V(-8, 14, 0), V(-8, 0, 0)),
    Part.LineSegment(V(-8, 0, 0), V(8, 0, 0)),
    Part.LineSegment(V(8, 0, 0), V(8, 14, 0)),
    Part.LineSegment(V(8, 14, 0), V(-8, 14, 0)),
], False)
sketch9.addConstraint([
    Sketcher.Constraint("Coincident", 0, 2, 1, 1),
    Sketcher.Constraint("Coincident", 1, 2, 2, 1),
    Sketcher.Constraint("Coincident", 2, 2, 3, 1),
    Sketcher.Constraint("Coincident", 3, 2, 0, 1),
    Sketcher.Constraint("Vertical", 0),
    Sketcher.Constraint("Horizontal", 1),
    Sketcher.Constraint("Vertical", 2),
    Sketcher.Constraint("Horizontal", 3),
    Sketcher.Constraint("Symmetric", 0, 2, 1, 2, -1, 1),
    Sketcher.Constraint("DistanceX", 1, 1, 1, 2, 16.0),
    Sketcher.Constraint("DistanceY", 0, 2, 0, 1, 14.5),
])
sketch9.setExpression("Constraints[9]", "Params.sketch9_width")
sketch9.setExpression("Constraints[10]", "Params.sketch9_height")
pad5 = body4.newObject("PartDesign::Pad", "Pad004")
pad5.Profile = sketch9
pad5.setExpression("Length", "Params.pad5_length")

# Sketch on XY plane
sketch10 = body4.newObject("Sketcher::SketchObject", "Sketch009")
sketch10.AttachmentSupport = (doc.getObject("XY_Plane003"), [""])
sketch10.MapMode = "FlatFace"
sketch10.addGeometry([
    Part.ArcOfCircle(Part.Circle(V(0, 3, 0), V(0, 0, 1), 1.2), math.radians(127), math.radians(413)),
    Part.LineSegment(V(0.8, 4, 0), V(0.8, 12, 0)),
    Part.LineSegment(V(0.8, 12, 0), V(-0.8, 12, 0)),
    Part.LineSegment(V(-0.8, 12, 0), V(-0.8, 4, 0)),
], False)
sketch10.addConstraint([
    Sketcher.Constraint("Coincident", 0, 2, 1, 1),
    Sketcher.Constraint("Coincident", 1, 2, 2, 1),
    Sketcher.Constraint("Coincident", 2, 2, 3, 1),
    Sketcher.Constraint("Coincident", 3, 2, 0, 1),
    Sketcher.Constraint("Vertical", 1),
    Sketcher.Constraint("Horizontal", 2),
    Sketcher.Constraint("Vertical", 3),
    Sketcher.Constraint("Symmetric", 0, 2, 3, 2, -2),
    Sketcher.Constraint("DistanceY", 1, 1, 1, 2, 8.0),
    Sketcher.Constraint("Radius", 0, 1.25),
    Sketcher.Constraint("DistanceX", 2, 2, 2, 1, 1.5),
    Sketcher.Constraint("DistanceY", -1, 1, 0, 3, 3.0),
])
sketch10.setExpression("Constraints[8]", "Params.sketch10_height")
sketch10.setExpression("Constraints[9]", "Params.sketch10_radius")
sketch10.setExpression("Constraints[10]", "Params.sketch10_width")
pad6 = body4.newObject("PartDesign::Pad", "Pad005")
pad6.Profile = sketch10
pad6.setExpression("Length", "Params.pad6_length")
pad6.Reversed = True
doc.recompute()

fillet2 = body4.newObject("PartDesign::Fillet", "Fillet001")
fillet2.Base = (pad6, edges_at(pad6, [
    (0, 1.75, -1.8),
    (0.75, 8, -1.8),
    (0, 12, -1.8),
    (-0.75, 8, -1.8),
]))
fillet2.setExpression("Radius", "Params.fillet2_radius")

# Sketch on XY plane
sketch11 = body4.newObject("Sketcher::SketchObject", "Sketch010")
sketch11.AttachmentSupport = (doc.getObject("XY_Plane003"), [""])
sketch11.MapMode = "FlatFace"
sketch11.addGeometry([
    Part.ArcOfCircle(Part.Circle(V(-3.9, 1.5, 0), V(0, 0, 1), 2), math.radians(0), math.radians(180)),  # 0
    Part.LineSegment(V(-5.8, 1.5, 0), V(-5.8, -3.3, 0)),  # 1
    Part.LineSegment(V(-5.8, -3.3, 0), V(-1.9, -3.3, 0)),  # 2
    Part.LineSegment(V(-1.9, -3.3, 0), V(-1.9, 1.5, 0)),  # 3
    Part.ArcOfCircle(Part.Circle(V(3.9, 1.5, 0), V(0, 0, 1), 2), math.radians(0), math.radians(180)),  # 4
    Part.LineSegment(V(1.9, 1.5, 0), V(1.9, -3.3, 0)),  # 5
    Part.LineSegment(V(1.9, -3.3, 0), V(5.8, -3.3, 0)),  # 6
    Part.LineSegment(V(5.8, -3.3, 0), V(5.8, 1.5, 0)),  # 7
], False)
sketch11.addConstraint([
    Sketcher.Constraint("Tangent", 0, 2, 1, 1),
    Sketcher.Constraint("Coincident", 1, 2, 2, 1),
    Sketcher.Constraint("Coincident", 2, 2, 3, 1),
    Sketcher.Constraint("Tangent", 3, 2, 0, 1),
    Sketcher.Constraint("Tangent", 4, 2, 5, 1),
    Sketcher.Constraint("Coincident", 5, 2, 6, 1),
    Sketcher.Constraint("Coincident", 6, 2, 7, 1),
    Sketcher.Constraint("Tangent", 7, 2, 4, 1),
    Sketcher.Constraint("Vertical", 1),
    Sketcher.Constraint("Horizontal", 2),
    Sketcher.Constraint("Vertical", 3),
    Sketcher.Constraint("Vertical", 5),
    Sketcher.Constraint("Horizontal", 6),
    Sketcher.Constraint("Vertical", 7),
    Sketcher.Constraint("Equal", 0, 4),
    Sketcher.Constraint("Symmetric", 0, 3, 4, 3, -2),
    Sketcher.Constraint("Horizontal", 2, 2, 5, 2),
    Sketcher.Constraint("Radius", 0, 2.0),
    Sketcher.Constraint("DistanceY", -1, 1, 0, 3, 1.5),
    Sketcher.Constraint("DistanceX", 0, 3, 4, 3, 7.7),
    Sketcher.Constraint("DistanceY", 1, 2, 1, 1, 4.781396),
])
sketch11.setExpression("Constraints[17]", "Params.sketch11_radius")
pocket5 = body4.newObject("PartDesign::Pocket", "Pocket004")
pocket5.Profile = sketch11
pocket5.Type = "ThroughAll"
pocket5.Midplane = True

# Sketch on XY plane
sketch12 = body4.newObject("Sketcher::SketchObject", "Sketch011")
sketch12.AttachmentSupport = (doc.getObject("XY_Plane003"), [""])
sketch12.MapMode = "FlatFace"
sketch12.addGeometry([
    Part.ArcOfCircle(Part.Circle(V(-3.9, -0.7, 0), V(0, 0, 1), 2), math.radians(180), math.radians(360)),  # 0
    Part.LineSegment(V(-1.9, -0.7, 0), V(-1.9, 8, 0)),  # 1
    Part.ArcOfCircle(Part.Circle(V(-3.9, 8, 0), V(0, 0, 1), 2), math.radians(0), math.radians(180)),  # 2
    Part.LineSegment(V(-5.8, 8, 0), V(-5.8, -0.7, 0)),  # 3
    Part.ArcOfCircle(Part.Circle(V(3.9, -0.7, 0), V(0, 0, 1), 2), math.radians(180), math.radians(360)),  # 4
    Part.LineSegment(V(5.8, -0.7, 0), V(5.8, 8, 0)),  # 5
    Part.ArcOfCircle(Part.Circle(V(3.9, 8, 0), V(0, 0, 1), 2), math.radians(0), math.radians(180)),  # 6
    Part.LineSegment(V(1.9, 8, 0), V(1.9, -0.7, 0)),  # 7
], False)
sketch12.addConstraint([
    Sketcher.Constraint("Tangent", 0, 2, 1, 1),
    Sketcher.Constraint("Tangent", 1, 2, 2, 1),
    Sketcher.Constraint("Tangent", 2, 2, 3, 1),
    Sketcher.Constraint("Tangent", 3, 2, 0, 1),
    Sketcher.Constraint("Tangent", 4, 2, 5, 1),
    Sketcher.Constraint("Tangent", 5, 2, 6, 1),
    Sketcher.Constraint("Tangent", 6, 2, 7, 1),
    Sketcher.Constraint("Tangent", 7, 2, 4, 1),
    Sketcher.Constraint("Vertical", 1),
    Sketcher.Constraint("Vertical", 3),
    Sketcher.Constraint("Vertical", 5),
    Sketcher.Constraint("Vertical", 7),
    Sketcher.Constraint("Equal", 2, 4),
    Sketcher.Constraint("Symmetric", 0, 3, 4, 3, -2),
    Sketcher.Constraint("Horizontal", 2, 3, 6, 3),
    Sketcher.Constraint("Radius", 0, 2.0),
    Sketcher.Constraint("DistanceX", 0, 3, 4, 3, 7.7),
    Sketcher.Constraint("DistanceY", 1, 1, 1, 2, 8.738053),
    Sketcher.Constraint("DistanceY", 0, 3, -1, 1, 0.720417),
])
sketch12.setExpression("Constraints[15]", "Params.sketch12_radius")
pocket6 = body4.newObject("PartDesign::Pocket", "Pocket005")
pocket6.Profile = sketch12
pocket6.setExpression("Length", "Params.pocket6_length")
pocket6.Reversed = True

doc.recompute()
